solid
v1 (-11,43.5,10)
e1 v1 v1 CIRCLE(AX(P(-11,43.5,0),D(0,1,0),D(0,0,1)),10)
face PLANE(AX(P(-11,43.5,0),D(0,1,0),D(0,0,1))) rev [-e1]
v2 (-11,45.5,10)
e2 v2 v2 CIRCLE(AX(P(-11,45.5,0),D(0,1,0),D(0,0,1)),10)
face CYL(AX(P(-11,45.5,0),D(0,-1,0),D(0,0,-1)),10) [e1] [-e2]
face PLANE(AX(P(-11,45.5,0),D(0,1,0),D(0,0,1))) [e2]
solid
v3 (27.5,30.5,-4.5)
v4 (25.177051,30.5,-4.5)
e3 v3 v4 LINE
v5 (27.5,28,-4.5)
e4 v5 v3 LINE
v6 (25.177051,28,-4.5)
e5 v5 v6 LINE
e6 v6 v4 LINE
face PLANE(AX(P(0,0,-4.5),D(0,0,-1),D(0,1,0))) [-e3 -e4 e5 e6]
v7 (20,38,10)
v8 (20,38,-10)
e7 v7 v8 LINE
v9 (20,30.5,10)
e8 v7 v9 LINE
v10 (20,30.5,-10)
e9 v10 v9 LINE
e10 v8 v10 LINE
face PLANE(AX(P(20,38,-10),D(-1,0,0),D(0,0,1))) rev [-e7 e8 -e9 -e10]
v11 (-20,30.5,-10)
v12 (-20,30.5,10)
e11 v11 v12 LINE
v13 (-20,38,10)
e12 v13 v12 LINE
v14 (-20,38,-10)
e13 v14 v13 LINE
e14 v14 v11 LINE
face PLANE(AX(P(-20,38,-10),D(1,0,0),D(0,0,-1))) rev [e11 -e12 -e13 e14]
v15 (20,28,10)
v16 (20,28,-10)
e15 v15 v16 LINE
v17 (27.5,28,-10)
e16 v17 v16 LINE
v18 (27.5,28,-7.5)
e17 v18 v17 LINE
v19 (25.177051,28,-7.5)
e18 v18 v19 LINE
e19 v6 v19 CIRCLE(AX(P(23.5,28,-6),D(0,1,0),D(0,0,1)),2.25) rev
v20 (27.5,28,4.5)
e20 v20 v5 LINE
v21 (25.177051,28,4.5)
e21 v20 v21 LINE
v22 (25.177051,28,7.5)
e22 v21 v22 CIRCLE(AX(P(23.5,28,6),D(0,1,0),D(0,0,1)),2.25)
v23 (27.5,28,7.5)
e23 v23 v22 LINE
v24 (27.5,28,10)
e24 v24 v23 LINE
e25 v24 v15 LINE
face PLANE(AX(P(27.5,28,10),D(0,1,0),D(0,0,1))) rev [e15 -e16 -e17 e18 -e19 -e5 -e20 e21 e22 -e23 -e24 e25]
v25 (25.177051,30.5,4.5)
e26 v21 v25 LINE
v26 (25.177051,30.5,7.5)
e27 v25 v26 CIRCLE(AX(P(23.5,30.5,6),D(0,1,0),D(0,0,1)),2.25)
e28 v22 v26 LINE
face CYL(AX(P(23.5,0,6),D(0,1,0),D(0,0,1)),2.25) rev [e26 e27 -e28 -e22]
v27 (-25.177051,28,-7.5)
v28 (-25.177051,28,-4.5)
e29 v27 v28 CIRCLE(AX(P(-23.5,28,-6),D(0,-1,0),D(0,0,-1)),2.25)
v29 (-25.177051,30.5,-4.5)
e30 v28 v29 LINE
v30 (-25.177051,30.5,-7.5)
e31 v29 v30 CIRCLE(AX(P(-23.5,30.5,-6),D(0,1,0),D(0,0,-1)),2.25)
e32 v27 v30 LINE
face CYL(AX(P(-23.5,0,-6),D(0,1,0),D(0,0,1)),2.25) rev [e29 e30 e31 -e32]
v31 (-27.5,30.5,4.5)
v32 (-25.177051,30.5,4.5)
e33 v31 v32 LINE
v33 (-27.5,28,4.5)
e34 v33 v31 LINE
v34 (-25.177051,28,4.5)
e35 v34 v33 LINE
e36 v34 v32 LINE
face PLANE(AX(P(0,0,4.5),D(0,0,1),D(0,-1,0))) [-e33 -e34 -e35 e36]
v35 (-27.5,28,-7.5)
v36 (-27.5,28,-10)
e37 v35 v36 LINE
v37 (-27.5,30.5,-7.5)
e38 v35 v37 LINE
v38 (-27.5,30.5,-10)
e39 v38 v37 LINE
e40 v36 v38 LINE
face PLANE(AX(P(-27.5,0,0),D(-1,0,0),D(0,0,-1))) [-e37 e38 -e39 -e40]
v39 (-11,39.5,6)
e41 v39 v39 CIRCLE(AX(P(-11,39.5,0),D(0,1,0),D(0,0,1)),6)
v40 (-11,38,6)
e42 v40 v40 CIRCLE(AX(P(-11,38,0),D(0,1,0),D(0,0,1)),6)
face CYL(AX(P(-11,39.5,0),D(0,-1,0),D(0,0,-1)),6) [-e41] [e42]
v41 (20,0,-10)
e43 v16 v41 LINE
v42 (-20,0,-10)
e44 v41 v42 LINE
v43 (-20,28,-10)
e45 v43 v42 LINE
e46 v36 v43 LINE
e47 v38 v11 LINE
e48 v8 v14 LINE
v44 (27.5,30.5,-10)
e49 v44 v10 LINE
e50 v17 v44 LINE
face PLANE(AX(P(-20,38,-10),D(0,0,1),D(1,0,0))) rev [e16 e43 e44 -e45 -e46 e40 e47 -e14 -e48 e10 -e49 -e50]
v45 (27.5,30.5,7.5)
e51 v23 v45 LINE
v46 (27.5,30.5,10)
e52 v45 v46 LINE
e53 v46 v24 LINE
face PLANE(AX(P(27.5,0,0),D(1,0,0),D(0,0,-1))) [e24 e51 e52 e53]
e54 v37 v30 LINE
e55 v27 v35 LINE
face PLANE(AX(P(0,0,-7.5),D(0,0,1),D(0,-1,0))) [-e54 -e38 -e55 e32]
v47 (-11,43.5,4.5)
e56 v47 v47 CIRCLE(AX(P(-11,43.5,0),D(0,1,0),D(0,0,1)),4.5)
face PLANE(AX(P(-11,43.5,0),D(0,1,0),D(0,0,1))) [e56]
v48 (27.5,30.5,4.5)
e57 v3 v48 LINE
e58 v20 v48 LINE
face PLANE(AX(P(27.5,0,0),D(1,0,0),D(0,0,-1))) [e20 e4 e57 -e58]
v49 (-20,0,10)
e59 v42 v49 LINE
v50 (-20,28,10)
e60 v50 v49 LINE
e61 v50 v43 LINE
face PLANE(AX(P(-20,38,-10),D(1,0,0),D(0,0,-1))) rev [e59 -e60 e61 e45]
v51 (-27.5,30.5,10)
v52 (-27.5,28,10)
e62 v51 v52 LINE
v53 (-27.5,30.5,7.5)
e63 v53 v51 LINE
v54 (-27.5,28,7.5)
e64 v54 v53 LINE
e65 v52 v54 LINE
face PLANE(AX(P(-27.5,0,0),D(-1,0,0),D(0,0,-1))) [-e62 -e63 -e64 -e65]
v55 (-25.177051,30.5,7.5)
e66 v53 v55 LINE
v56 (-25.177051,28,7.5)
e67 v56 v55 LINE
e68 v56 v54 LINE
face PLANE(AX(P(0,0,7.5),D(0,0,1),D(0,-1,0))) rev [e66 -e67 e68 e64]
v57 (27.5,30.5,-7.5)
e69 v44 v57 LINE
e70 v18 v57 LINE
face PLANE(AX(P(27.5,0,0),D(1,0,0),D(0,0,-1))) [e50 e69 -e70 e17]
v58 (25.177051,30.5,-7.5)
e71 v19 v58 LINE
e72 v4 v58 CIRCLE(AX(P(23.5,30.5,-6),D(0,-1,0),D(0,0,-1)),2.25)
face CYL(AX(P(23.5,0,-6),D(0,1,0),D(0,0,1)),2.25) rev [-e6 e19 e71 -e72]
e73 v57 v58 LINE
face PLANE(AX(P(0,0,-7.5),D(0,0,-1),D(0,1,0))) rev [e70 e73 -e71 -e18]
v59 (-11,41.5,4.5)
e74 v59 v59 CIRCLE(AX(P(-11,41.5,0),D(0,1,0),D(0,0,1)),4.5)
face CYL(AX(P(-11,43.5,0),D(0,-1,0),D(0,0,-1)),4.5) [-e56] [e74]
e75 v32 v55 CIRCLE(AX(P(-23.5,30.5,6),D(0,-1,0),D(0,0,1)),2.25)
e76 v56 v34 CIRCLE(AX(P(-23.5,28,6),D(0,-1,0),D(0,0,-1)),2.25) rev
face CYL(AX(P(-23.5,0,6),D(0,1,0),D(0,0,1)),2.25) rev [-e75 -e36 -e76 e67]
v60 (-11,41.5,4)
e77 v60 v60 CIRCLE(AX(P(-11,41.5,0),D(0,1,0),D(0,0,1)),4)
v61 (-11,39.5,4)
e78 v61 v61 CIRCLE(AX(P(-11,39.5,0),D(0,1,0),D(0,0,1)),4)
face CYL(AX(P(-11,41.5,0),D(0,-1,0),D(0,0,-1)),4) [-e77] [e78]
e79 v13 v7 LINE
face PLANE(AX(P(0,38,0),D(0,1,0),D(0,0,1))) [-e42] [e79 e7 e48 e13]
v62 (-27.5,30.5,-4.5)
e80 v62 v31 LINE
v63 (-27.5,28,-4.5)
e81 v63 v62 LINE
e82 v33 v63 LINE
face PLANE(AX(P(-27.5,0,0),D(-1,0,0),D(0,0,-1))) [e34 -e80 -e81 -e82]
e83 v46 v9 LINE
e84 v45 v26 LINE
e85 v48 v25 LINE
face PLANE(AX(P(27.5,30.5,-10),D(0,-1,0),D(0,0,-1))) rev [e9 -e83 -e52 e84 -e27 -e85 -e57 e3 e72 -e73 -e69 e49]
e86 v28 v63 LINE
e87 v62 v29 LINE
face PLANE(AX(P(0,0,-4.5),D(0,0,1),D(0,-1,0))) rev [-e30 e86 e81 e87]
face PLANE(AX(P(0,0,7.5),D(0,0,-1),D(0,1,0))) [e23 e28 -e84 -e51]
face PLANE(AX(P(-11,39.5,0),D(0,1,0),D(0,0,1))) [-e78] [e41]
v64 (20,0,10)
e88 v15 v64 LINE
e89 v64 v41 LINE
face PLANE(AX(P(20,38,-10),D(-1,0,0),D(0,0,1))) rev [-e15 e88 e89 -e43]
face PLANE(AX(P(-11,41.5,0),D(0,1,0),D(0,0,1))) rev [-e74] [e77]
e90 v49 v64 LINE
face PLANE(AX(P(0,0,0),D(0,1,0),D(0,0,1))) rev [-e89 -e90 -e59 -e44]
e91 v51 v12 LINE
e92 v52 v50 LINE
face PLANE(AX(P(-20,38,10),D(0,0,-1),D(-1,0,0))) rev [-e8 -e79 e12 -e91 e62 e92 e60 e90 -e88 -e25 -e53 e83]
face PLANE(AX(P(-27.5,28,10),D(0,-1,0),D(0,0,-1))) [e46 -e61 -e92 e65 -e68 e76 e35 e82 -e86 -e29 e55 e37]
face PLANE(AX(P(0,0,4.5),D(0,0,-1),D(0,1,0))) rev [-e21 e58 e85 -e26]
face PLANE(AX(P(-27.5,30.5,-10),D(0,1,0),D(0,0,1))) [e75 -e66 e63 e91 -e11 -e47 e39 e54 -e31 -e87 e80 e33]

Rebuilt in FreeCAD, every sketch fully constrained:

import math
import FreeCAD as App
import Part
import Sketcher
Q = App.Units.Quantity


def add_polygon(sketch, points):
    """Adds a closed chain of lines whose ends are joined by coincident constraints."""
    first, n = sketch.GeometryCount, len(points)
    for a, b in zip(points, points[1:] + points[:1]):
        sketch.addGeometry(Part.LineSegment(App.Vector(*a, 0), App.Vector(*b, 0)), False)
    for i in range(n):
        sketch.addConstraint(Sketcher.Constraint("Coincident", first + i, 2, first + (i + 1) % n, 1))

doc = App.newDocument("Part")
body = doc.addObject("PartDesign::Body", "Body")

# Sketch on XZ plane
sketch1 = body.newObject("Sketcher::SketchObject", "Sketch")
sketch1.AttachmentSupport = (doc.getObject("XZ_Plane"), [""])
sketch1.MapMode = "FlatFace"
add_polygon(sketch1, [(-20, -10), (-20, 10), (20, 10), (20, -10)])  # lines 0-3
sketch1.addConstraint(Sketcher.Constraint("Vertical", 0))
sketch1.addConstraint(Sketcher.Constraint("Horizontal", 1))
sketch1.addConstraint(Sketcher.Constraint("Vertical", 2))
sketch1.addConstraint(Sketcher.Constraint("Horizontal", 3))
sketch1.addConstraint(Sketcher.Constraint("Symmetric", 0, 2, 2, 2, -1, 1))
sketch1.addConstraint(Sketcher.Constraint("DistanceX", 1, 1, 1, 2, Q("40 mm")))
sketch1.addConstraint(Sketcher.Constraint("DistanceY", 0, 1, 0, 2, Q("20 mm")))
pad1 = body.newObject("PartDesign::Pad", "Pad")
pad1.Profile = sketch1
pad1.Length = 38
pad1.Reversed = True

# Sketch on YZ plane
sketch2 = body.newObject("Sketcher::SketchObject", "Sketch001")
sketch2.AttachmentSupport = (doc.getObject("YZ_Plane"), [""])
sketch2.MapMode = "FlatFace"
sketch2.AttachmentOffset = App.Placement(App.Vector(0, 0, 20), App.Rotation())
add_polygon(sketch2, [(30.5, 10), (28, 10), (28, -10), (30.5, -10)])  # lines 0-3
sketch2.addConstraint(Sketcher.Constraint("Horizontal", 0))
sketch2.addConstraint(Sketcher.Constraint("Vertical", 1))
sketch2.addConstraint(Sketcher.Constraint("Horizontal", 2))
sketch2.addConstraint(Sketcher.Constraint("Vertical", 3))
sketch2.addConstraint(Sketcher.Constraint("DistanceY", 1, 2, 1, 1, Q("20 mm")))
sketch2.addConstraint(Sketcher.Constraint("DistanceX", 0, 2, 0, 1, Q("2.5 mm")))
sketch2.addConstraint(Sketcher.Constraint("DistanceX", -1, 1, 0, 2, Q("28 mm")))
sketch2.addConstraint(Sketcher.Constraint("DistanceY", -1, 1, 0, 2, Q("10 mm")))
pad2 = body.newObject("PartDesign::Pad", "Pad001")
pad2.Profile = sketch2
pad2.Length = 7.5

# Sketch on XZ plane
sketch3 = body.newObject("Sketcher::SketchObject", "Sketch002")
sketch3.AttachmentSupport = (doc.getObject("XZ_Plane"), [""])
sketch3.MapMode = "FlatFace"
sketch3.AttachmentOffset = App.Placement(App.Vector(0, 0, -30.5), App.Rotation())
sketch3.addGeometry(Part.LineSegment(App.Vector(27.5, 7.5, 0), App.Vector(27.5, 4.5, 0)), False)
sketch3.addGeometry(Part.LineSegment(App.Vector(27.5, 4.5, 0), App.Vector(25.177051, 4.5, 0)), False)
sketch3.addGeometry(Part.ArcOfCircle(Part.Circle(App.Vector(23.5, 6, 0), App.Vector(0, 0, 1), 2.25), math.radians(41.810315), math.radians(318.189685)), False)
sketch3.addGeometry(Part.LineSegment(App.Vector(25.177051, 7.5, 0), App.Vector(27.5, 7.5, 0)), False)
sketch3.addConstraint(Sketcher.Constraint("Coincident", 0, 2, 1, 1))
sketch3.addConstraint(Sketcher.Constraint("Coincident", 1, 2, 2, 2))
sketch3.addConstraint(Sketcher.Constraint("Coincident", 2, 1, 3, 1))
sketch3.addConstraint(Sketcher.Constraint("Coincident", 3, 2, 0, 1))
sketch3.addConstraint(Sketcher.Constraint("Vertical", 0))
sketch3.addConstraint(Sketcher.Constraint("Horizontal", 1))
sketch3.addConstraint(Sketcher.Constraint("Horizontal", 3))
sketch3.addConstraint(Sketcher.Constraint("Vertical", 1, 2, 2, 1))
sketch3.addConstraint(Sketcher.Constraint("DistanceY", 0, 2, 0, 1, Q("3 mm")))
sketch3.addConstraint(Sketcher.Constraint("Radius", 2, Q("2.25 mm")))
sketch3.addConstraint(Sketcher.Constraint("DistanceY", -1, 1, 2, 3, Q("6 mm")))
sketch3.addConstraint(Sketcher.Constraint("DistanceX", 2, 3, 0, 2, Q("4 mm")))
sketch3.addConstraint(Sketcher.Constraint("DistanceX", -1, 1, 2, 3, Q("23.5 mm")))
pocket1 = body.newObject("PartDesign::Pocket", "Pocket")
pocket1.Profile = sketch3
pocket1.Type = "ThroughAll"
pocket1.Reversed = True
doc.recompute()

mirrored = body.newObject("PartDesign::Mirrored", "Mirrored")
mirrored.Originals = [pocket1]
mirrored.MirrorPlane = (doc.getObject("XY_Plane"), [""])
body.Tip = mirrored
doc.recompute()

mirrored2 = body.newObject("PartDesign::Mirrored", "Mirrored001")
mirrored2.Originals = [pad2, pocket1]
mirrored2.MirrorPlane = (doc.getObject("YZ_Plane"), [""])
body.Tip = mirrored2

# Sketch on XZ plane
sketch4 = body.newObject("Sketcher::SketchObject", "Sketch003")
sketch4.AttachmentSupport = (doc.getObject("XZ_Plane"), [""])
sketch4.MapMode = "FlatFace"
sketch4.AttachmentOffset = App.Placement(App.Vector(0, 0, -30.5), App.Rotation())
sketch4.addGeometry(Part.LineSegment(App.Vector(-27.5, -7.5, 0), App.Vector(-27.5, -4.5, 0)), False)
sketch4.addGeometry(Part.LineSegment(App.Vector(-27.5, -4.5, 0), App.Vector(-25.177051, -4.5, 0)), False)
sketch4.addGeometry(Part.ArcOfCircle(Part.Circle(App.Vector(-23.5, -6, 0), App.Vector(0, 0, 1), 2.25), math.radians(-138.189685), math.radians(138.189685)), False)
sketch4.addGeometry(Part.LineSegment(App.Vector(-25.177051, -7.5, 0), App.Vector(-27.5, -7.5, 0)), False)
sketch4.addConstraint(Sketcher.Constraint("Coincident", 0, 2, 1, 1))
sketch4.addConstraint(Sketcher.Constraint("Coincident", 1, 2, 2, 2))
sketch4.addConstraint(Sketcher.Constraint("Coincident", 2, 1, 3, 1))
sketch4.addConstraint(Sketcher.Constraint("Coincident", 3, 2, 0, 1))
sketch4.addConstraint(Sketcher.Constraint("Vertical", 0))
sketch4.addConstraint(Sketcher.Constraint("Horizontal", 1))
sketch4.addConstraint(Sketcher.Constraint("Horizontal", 3))
sketch4.addConstraint(Sketcher.Constraint("Vertical", 1, 2, 2, 1))
sketch4.addConstraint(Sketcher.Constraint("DistanceY", 0, 1, 0, 2, Q("3 mm")))
sketch4.addConstraint(Sketcher.Constraint("Radius", 2, Q("2.25 mm")))
sketch4.addConstraint(Sketcher.Constraint("DistanceY", 2, 3, -1, 1, Q("6 mm")))
sketch4.addConstraint(Sketcher.Constraint("DistanceX", 0, 2, 2, 3, Q("4 mm")))
sketch4.addConstraint(Sketcher.Constraint("DistanceX", 2, 3, -1, 1, Q("23.5 mm")))
pocket2 = body.newObject("PartDesign::Pocket", "Pocket001")
pocket2.Profile = sketch4
pocket2.Type = "ThroughAll"
pocket2.Reversed = True

# Sketch on XZ plane
sketch5 = body.newObject("Sketcher::SketchObject", "Sketch004")
sketch5.AttachmentSupport = (doc.getObject("XZ_Plane"), [""])
sketch5.MapMode = "FlatFace"
sketch5.AttachmentOffset = App.Placement(App.Vector(0, 0, -38), App.Rotation())
sketch5.addGeometry(Part.Circle(App.Vector(-11, 0, 0), App.Vector(0, 0, 1), 6), False)
sketch5.addConstraint(Sketcher.Constraint("PointOnObject", 0, 3, -1))
sketch5.addConstraint(Sketcher.Constraint("Diameter", 0, Q("12 mm")))
sketch5.addConstraint(Sketcher.Constraint("DistanceX", 0, 3, -1, 1, Q("11 mm")))
pad3 = body.newObject("PartDesign::Pad", "Pad002")
pad3.Profile = sketch5
pad3.Length = 1.5
pad3.Reversed = True

# Sketch on XZ plane
sketch6 = body.newObject("Sketcher::SketchObject", "Sketch005")
sketch6.AttachmentSupport = (doc.getObject("XZ_Plane"), [""])
sketch6.MapMode = "FlatFace"
sketch6.AttachmentOffset = App.Placement(App.Vector(0, 0, -39.5), App.Rotation())
sketch6.addGeometry(Part.Circle(App.Vector(-11, 0, 0), App.Vector(0, 0, 1), 4), False)
sketch6.addConstraint(Sketcher.Constraint("PointOnObject", 0, 3, -1))
sketch6.addConstraint(Sketcher.Constraint("Diameter", 0, Q("8 mm")))
sketch6.addConstraint(Sketcher.Constraint("DistanceX", 0, 3, -1, 1, Q("11 mm")))
pad4 = body.newObject("PartDesign::Pad", "Pad003")
pad4.Profile = sketch6
pad4.Length = 2
pad4.Reversed = True

# Sketch on XZ plane
sketch7 = body.newObject("Sketcher::SketchObject", "Sketch006")
sketch7.AttachmentSupport = (doc.getObject("XZ_Plane"), [""])
sketch7.MapMode = "FlatFace"
sketch7.AttachmentOffset = App.Placement(App.Vector(0, 0, -41.5), App.Rotation())
sketch7.addGeometry(Part.Circle(App.Vector(-11, 0, 0), App.Vector(0, 0, 1), 4.5), False)
sketch7.addConstraint(Sketcher.Constraint("PointOnObject", 0, 3, -1))
sketch7.addConstraint(Sketcher.Constraint("Diameter", 0, Q("9 mm")))
sketch7.addConstraint(Sketcher.Constraint("DistanceX", 0, 3, -1, 1, Q("11 mm")))
pad5 = body.newObject("PartDesign::Pad", "Pad004")
pad5.Profile = sketch7
pad5.Length = 2
pad5.Reversed = True
body2 = doc.addObject("PartDesign::Body", "Body001")

# Sketch on XZ plane
sketch8 = body2.newObject("Sketcher::SketchObject", "Sketch007")
sketch8.AttachmentSupport = (doc.getObject("XZ_Plane001"), [""])
sketch8.MapMode = "FlatFace"
sketch8.AttachmentOffset = App.Placement(App.Vector(0, 0, -43.5), App.Rotation())
sketch8.addGeometry(Part.Circle(App.Vector(-11, 0, 0), App.Vector(0, 0, 1), 10), False)
sketch8.addConstraint(Sketcher.Constraint("PointOnObject", 0, 3, -1))
sketch8.addConstraint(Sketcher.Constraint("Diameter", 0, Q("20 mm")))
sketch8.addConstraint(Sketcher.Constraint("DistanceX", 0, 3, -1, 1, Q("11 mm")))
pad6 = body2.newObject("PartDesign::Pad", "Pad005")
pad6.Profile = sketch8
pad6.Length = 2
pad6.Reversed = True

doc.recompute()
